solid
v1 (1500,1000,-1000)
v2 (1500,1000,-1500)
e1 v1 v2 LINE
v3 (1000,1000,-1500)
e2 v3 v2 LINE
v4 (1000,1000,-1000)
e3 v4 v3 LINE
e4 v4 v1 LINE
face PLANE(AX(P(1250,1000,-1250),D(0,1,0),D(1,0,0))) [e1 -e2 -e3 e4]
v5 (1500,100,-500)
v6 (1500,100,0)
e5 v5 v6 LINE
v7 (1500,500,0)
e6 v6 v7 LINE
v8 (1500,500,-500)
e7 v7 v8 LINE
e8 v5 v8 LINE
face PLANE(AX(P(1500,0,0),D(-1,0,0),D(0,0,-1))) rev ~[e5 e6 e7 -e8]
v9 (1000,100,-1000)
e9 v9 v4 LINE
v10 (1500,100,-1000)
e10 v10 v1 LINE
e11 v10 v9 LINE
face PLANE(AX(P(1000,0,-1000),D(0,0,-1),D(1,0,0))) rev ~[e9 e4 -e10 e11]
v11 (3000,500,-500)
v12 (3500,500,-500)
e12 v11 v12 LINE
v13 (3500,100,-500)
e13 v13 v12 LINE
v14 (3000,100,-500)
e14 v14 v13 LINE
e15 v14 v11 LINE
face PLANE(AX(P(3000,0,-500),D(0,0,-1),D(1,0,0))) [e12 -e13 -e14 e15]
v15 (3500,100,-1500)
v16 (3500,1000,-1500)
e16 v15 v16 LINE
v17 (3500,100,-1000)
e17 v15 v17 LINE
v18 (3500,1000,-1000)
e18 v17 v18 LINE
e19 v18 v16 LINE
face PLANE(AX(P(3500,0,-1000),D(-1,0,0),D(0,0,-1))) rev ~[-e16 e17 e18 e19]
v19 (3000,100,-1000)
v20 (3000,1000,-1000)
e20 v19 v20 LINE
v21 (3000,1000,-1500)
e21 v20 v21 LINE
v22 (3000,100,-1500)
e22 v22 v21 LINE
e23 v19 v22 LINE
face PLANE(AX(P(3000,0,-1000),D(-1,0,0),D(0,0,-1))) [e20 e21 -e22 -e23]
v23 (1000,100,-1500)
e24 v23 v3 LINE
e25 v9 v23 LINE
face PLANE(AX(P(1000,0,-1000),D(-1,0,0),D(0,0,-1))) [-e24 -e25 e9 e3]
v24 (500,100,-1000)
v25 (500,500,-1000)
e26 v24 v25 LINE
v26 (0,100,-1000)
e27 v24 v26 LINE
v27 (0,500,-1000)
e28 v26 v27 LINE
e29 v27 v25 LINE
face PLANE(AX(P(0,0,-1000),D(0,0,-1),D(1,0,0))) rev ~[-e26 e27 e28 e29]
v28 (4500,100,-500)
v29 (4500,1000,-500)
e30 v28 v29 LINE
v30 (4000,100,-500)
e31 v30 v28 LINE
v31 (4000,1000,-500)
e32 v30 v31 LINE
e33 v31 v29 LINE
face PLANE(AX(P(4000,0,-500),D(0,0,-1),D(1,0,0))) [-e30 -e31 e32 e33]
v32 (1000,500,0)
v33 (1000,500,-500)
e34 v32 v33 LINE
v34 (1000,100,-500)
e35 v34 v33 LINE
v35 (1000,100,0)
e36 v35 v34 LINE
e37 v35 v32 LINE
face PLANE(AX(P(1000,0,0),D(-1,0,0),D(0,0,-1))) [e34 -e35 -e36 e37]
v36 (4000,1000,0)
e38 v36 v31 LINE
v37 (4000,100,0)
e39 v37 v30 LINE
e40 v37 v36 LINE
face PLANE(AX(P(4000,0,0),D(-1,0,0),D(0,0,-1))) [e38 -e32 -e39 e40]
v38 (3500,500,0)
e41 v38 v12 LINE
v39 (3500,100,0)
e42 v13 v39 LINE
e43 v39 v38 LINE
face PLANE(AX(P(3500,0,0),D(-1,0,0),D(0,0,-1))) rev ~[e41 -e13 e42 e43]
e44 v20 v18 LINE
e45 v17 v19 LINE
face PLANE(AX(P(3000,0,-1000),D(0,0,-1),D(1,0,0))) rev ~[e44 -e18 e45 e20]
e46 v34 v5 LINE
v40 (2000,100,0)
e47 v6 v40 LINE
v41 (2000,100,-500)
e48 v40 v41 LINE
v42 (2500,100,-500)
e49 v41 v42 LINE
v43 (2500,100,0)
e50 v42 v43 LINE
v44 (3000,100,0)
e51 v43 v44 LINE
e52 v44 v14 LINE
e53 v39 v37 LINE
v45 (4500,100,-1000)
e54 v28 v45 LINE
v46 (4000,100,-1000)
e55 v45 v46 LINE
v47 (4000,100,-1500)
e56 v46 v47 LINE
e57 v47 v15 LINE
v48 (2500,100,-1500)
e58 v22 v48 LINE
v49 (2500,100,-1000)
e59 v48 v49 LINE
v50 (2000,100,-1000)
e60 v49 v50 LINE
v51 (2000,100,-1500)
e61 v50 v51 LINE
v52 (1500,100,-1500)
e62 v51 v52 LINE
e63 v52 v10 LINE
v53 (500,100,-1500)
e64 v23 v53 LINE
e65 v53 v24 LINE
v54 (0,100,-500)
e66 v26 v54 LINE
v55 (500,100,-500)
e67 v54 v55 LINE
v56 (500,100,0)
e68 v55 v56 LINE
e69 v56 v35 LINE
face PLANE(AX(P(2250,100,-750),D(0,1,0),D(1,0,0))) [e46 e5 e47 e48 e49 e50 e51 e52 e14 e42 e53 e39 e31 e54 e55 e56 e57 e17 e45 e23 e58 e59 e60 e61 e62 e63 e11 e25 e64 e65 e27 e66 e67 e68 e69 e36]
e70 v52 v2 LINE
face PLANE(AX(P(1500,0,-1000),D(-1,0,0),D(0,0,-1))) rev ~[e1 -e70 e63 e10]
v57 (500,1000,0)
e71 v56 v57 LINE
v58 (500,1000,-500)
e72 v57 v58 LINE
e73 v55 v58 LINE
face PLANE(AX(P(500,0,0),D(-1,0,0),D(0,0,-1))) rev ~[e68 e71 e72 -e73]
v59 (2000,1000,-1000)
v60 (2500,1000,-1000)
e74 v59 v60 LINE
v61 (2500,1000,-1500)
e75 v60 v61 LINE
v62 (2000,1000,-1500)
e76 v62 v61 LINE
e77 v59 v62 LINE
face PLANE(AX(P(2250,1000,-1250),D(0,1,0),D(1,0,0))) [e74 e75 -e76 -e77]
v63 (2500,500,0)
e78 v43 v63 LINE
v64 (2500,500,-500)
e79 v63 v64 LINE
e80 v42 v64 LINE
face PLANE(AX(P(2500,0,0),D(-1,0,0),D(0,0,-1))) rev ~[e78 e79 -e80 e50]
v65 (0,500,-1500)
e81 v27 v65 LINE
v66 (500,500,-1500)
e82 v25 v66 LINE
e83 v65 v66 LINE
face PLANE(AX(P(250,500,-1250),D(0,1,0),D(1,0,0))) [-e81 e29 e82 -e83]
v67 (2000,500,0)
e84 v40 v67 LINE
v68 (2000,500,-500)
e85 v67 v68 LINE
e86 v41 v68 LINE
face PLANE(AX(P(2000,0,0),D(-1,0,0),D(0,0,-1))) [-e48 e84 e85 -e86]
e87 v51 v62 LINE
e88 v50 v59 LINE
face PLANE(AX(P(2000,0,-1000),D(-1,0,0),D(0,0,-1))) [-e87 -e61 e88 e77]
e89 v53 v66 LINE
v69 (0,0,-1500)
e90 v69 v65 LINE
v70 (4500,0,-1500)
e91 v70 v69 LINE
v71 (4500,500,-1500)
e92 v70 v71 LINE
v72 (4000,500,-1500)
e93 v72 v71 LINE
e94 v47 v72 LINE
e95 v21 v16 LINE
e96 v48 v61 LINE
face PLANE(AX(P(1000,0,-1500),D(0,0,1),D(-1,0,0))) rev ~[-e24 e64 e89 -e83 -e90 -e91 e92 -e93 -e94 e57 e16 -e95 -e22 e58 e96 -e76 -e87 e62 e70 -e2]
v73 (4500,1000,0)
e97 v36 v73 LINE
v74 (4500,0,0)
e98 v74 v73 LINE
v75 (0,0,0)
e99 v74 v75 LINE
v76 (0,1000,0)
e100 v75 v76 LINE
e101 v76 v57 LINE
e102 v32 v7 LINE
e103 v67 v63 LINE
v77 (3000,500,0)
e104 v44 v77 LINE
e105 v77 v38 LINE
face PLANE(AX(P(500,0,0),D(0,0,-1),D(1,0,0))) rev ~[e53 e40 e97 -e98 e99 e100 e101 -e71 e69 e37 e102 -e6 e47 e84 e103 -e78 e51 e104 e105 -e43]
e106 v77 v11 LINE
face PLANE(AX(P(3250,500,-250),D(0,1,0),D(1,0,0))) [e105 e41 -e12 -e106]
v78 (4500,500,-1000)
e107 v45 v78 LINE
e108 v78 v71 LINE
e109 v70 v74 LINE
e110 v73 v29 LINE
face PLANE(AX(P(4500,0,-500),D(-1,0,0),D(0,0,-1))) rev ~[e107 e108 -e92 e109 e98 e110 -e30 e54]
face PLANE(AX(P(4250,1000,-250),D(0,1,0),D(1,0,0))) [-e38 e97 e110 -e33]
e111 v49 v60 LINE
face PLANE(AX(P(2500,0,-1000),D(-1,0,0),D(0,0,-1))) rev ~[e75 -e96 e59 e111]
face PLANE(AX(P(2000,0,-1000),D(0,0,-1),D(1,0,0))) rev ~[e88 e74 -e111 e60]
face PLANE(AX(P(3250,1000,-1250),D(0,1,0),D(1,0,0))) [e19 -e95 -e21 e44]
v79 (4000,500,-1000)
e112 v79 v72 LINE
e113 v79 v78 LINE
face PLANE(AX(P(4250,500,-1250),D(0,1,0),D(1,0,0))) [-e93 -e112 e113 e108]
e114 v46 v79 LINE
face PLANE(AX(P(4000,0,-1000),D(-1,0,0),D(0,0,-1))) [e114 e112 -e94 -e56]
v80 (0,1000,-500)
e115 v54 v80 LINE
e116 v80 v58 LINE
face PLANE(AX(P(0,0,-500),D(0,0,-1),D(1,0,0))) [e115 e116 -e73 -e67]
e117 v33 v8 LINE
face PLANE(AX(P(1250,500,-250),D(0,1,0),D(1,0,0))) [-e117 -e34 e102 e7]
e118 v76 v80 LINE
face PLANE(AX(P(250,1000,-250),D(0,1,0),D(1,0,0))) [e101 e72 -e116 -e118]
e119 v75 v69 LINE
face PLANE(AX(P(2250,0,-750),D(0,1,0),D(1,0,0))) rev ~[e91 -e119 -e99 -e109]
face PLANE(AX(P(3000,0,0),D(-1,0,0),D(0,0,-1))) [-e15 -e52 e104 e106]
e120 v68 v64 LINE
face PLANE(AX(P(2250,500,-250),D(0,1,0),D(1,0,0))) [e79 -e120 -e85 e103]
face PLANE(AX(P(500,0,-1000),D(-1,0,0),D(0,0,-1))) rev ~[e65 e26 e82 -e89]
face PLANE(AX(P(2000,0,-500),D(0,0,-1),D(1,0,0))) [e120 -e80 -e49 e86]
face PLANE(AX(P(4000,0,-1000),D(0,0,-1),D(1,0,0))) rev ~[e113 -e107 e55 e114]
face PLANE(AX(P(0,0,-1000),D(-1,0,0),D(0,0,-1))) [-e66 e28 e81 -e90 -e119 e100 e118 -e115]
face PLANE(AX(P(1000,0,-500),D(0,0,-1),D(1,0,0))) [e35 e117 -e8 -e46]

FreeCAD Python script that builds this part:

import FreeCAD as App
import Part
import Sketcher


def add_polygon(sketch, points):
    """Adds a closed chain of lines whose ends are joined by coincident constraints."""
    first, n = sketch.GeometryCount, len(points)
    for a, b in zip(points, points[1:] + points[:1]):
        sketch.addGeometry(Part.LineSegment(App.Vector(*a, 0), App.Vector(*b, 0)), False)
    for i in range(n):
        sketch.addConstraint(Sketcher.Constraint("Coincident", first + i, 2, first + (i + 1) % n, 1))

doc = App.newDocument("Part")
body = doc.addObject("PartDesign::Body", "Body")

# Sketch on XZ plane
sketch1 = doc.addObject("Sketcher::SketchObject", "Sketch")
body.addObject(sketch1)
sketch1.AttachmentSupport = (doc.XZ_Plane, [""])
sketch1.MapMode = "FlatFace"
add_polygon(sketch1, [(1000, -500), (1000, 0), (1500, 0), (1500, -500)])  # lines 0-3
sketch1.addConstraint([
    Sketcher.Constraint("Vertical", 0),
    Sketcher.Constraint("Horizontal", 1),
    Sketcher.Constraint("Vertical", 2),
    Sketcher.Constraint("Horizontal", 3),
    Sketcher.Constraint("PointOnObject", 0, 2, -1),
    Sketcher.Constraint("Equal", 3, 0),
    Sketcher.Constraint("DistanceX", 1, 1, 1, 2, 500.0),
    Sketcher.Constraint("DistanceX", -1, 1, 0, 2, 1000.0),
])
pad1 = doc.addObject("PartDesign::Pad", "Pad")
body.addObject(pad1)
pad1.Profile = sketch1
pad1.Length = 500
pad1.Reversed = True
body2 = doc.addObject("PartDesign::Body", "Body001")

# Sketch on XZ plane
sketch2 = doc.addObject("Sketcher::SketchObject", "Sketch001")
body2.addObject(sketch2)
sketch2.AttachmentSupport = (doc.getObject("XZ_Plane001"), [""])
sketch2.MapMode = "FlatFace"
add_polygon(sketch2, [(2000, -500), (2000, 0), (2500, 0), (2500, -500)])  # lines 0-3
sketch2.addConstraint([
    Sketcher.Constraint("Vertical", 0),
    Sketcher.Constraint("Horizontal", 1),
    Sketcher.Constraint("Vertical", 2),
    Sketcher.Constraint("Horizontal", 3),
    Sketcher.Constraint("PointOnObject", 0, 2, -1),
    Sketcher.Constraint("Equal", 3, 0),
    Sketcher.Constraint("DistanceX", 1, 1, 1, 2, 500.0),
    Sketcher.Constraint("DistanceX", -1, 1, 0, 2, 2000.0),
])
pad2 = doc.addObject("PartDesign::Pad", "Pad001")
body2.addObject(pad2)
pad2.Profile = sketch2
pad2.Length = 500
pad2.Reversed = True
body3 = doc.addObject("PartDesign::Body", "Body002")

# Sketch on XZ plane
sketch3 = doc.addObject("Sketcher::SketchObject", "Sketch002")
body3.addObject(sketch3)
sketch3.AttachmentSupport = (doc.getObject("XZ_Plane002"), [""])
sketch3.MapMode = "FlatFace"
add_polygon(sketch3, [(4000, -1500), (4000, -1000), (4500, -1000), (4500, -1500)])  # lines 0-3
sketch3.addConstraint([
    Sketcher.Constraint("Vertical", 0),
    Sketcher.Constraint("Horizontal", 1),
    Sketcher.Constraint("Vertical", 2),
    Sketcher.Constraint("Horizontal", 3),
    Sketcher.Constraint("Equal", 3, 0),
    Sketcher.Constraint("DistanceX", 1, 1, 1, 2, 500.0),
    Sketcher.Constraint("DistanceX", -1, 1, 0, 2, 4000.0),
    Sketcher.Constraint("DistanceY", 0, 2, -1, 1, 1000.0),
])
pad3 = doc.addObject("PartDesign::Pad", "Pad002")
body3.addObject(pad3)
pad3.Profile = sketch3
pad3.Length = 500
pad3.Reversed = True
body4 = doc.addObject("PartDesign::Body", "Body003")

# Sketch on XZ plane
sketch4 = doc.addObject("Sketcher::SketchObject", "Sketch003")
body4.addObject(sketch4)
sketch4.AttachmentSupport = (doc.getObject("XZ_Plane003"), [""])
sketch4.MapMode = "FlatFace"
add_polygon(sketch4, [(0, -1500), (0, -1000), (500, -1000), (500, -1500)])  # lines 0-3
sketch4.addConstraint([
    Sketcher.Constraint("Vertical", 0),
    Sketcher.Constraint("Horizontal", 1),
    Sketcher.Constraint("Vertical", 2),
    Sketcher.Constraint("Horizontal", 3),
    Sketcher.Constraint("PointOnObject", 0, 2, -2),
    Sketcher.Constraint("Equal", 3, 0),
    Sketcher.Constraint("DistanceX", 1, 1, 1, 2, 500.0),
    Sketcher.Constraint("DistanceY", 0, 2, -1, 1, 1000.0),
])
pad4 = doc.addObject("PartDesign::Pad", "Pad003")
body4.addObject(pad4)
pad4.Profile = sketch4
pad4.Length = 500
pad4.Reversed = True
body5 = doc.addObject("PartDesign::Body", "Body004")

# Sketch on XZ plane
sketch5 = doc.addObject("Sketcher::SketchObject", "Sketch004")
body5.addObject(sketch5)
sketch5.AttachmentSupport = (doc.getObject("XZ_Plane004"), [""])
sketch5.MapMode = "FlatFace"
add_polygon(sketch5, [(3000, -500), (3000, 0), (3500, 0), (3500, -500)])  # lines 0-3
sketch5.addConstraint([
    Sketcher.Constraint("Vertical", 0),
    Sketcher.Constraint("Horizontal", 1),
    Sketcher.Constraint("Vertical", 2),
    Sketcher.Constraint("Horizontal", 3),
    Sketcher.Constraint("PointOnObject", 0, 2, -1),
    Sketcher.Constraint("Equal", 3, 0),
    Sketcher.Constraint("DistanceX", 1, 1, 1, 2, 500.0),
    Sketcher.Constraint("DistanceX", -1, 1, 0, 2, 3000.0),
])
pad5 = doc.addObject("PartDesign::Pad", "Pad004")
body5.addObject(pad5)
pad5.Profile = sketch5
pad5.Length = 500
pad5.Reversed = True
body6 = doc.addObject("PartDesign::Body", "Body005")

# Sketch on XZ plane
sketch6 = doc.addObject("Sketcher::SketchObject", "Sketch005")
body6.addObject(sketch6)
sketch6.AttachmentSupport = (doc.getObject("XZ_Plane005"), [""])
sketch6.MapMode = "FlatFace"
add_polygon(sketch6, [(0, -500), (0, 0), (500, 0), (500, -500)])  # lines 0-3
sketch6.addConstraint([
    Sketcher.Constraint("Vertical", 0),
    Sketcher.Constraint("Horizontal", 1),
    Sketcher.Constraint("Vertical", 2),
    Sketcher.Constraint("Horizontal", 3),
    Sketcher.Constraint("Coincident", 0, 2, -1, 1),
    Sketcher.Constraint("Equal", 3, 0),
    Sketcher.Constraint("DistanceX", 1, 1, 1, 2, 500.0),
])
pad6 = doc.addObject("PartDesign::Pad", "Pad005")
body6.addObject(pad6)
pad6.Profile = sketch6
pad6.Length = 1000
pad6.Reversed = True
body7 = doc.addObject("PartDesign::Body", "Body006")

# Sketch on XZ plane
sketch7 = doc.addObject("Sketcher::SketchObject", "Sketch006")
body7.addObject(sketch7)
sketch7.AttachmentSupport = (doc.getObject("XZ_Plane006"), [""])
sketch7.MapMode = "FlatFace"
add_polygon(sketch7, [(1000, -1500), (1000, -1000), (1500, -1000), (1500, -1500)])  # lines 0-3
sketch7.addConstraint([
    Sketcher.Constraint("Vertical", 0),
    Sketcher.Constraint("Horizontal", 1),
    Sketcher.Constraint("Vertical", 2),
    Sketcher.Constraint("Horizontal", 3),
    Sketcher.Constraint("Equal", 3, 0),
    Sketcher.Constraint("DistanceX", 1, 1, 1, 2, 500.0),
    Sketcher.Constraint("DistanceX", -1, 1, 0, 2, 1000.0),
    Sketcher.Constraint("DistanceY", 0, 2, -1, 1, 1000.0),
])
pad7 = doc.addObject("PartDesign::Pad", "Pad006")
body7.addObject(pad7)
pad7.Profile = sketch7
pad7.Length = 1000
pad7.Reversed = True
body8 = doc.addObject("PartDesign::Body", "Body007")

# Sketch on XZ plane
sketch8 = doc.addObject("Sketcher::SketchObject", "Sketch007")
body8.addObject(sketch8)
sketch8.AttachmentSupport = (doc.getObject("XZ_Plane007"), [""])
sketch8.MapMode = "FlatFace"
add_polygon(sketch8, [(2000, -1500), (2000, -1000), (2500, -1000), (2500, -1500)])  # lines 0-3
sketch8.addConstraint([
    Sketcher.Constraint("Vertical", 0),
    Sketcher.Constraint("Horizontal", 1),
    Sketcher.Constraint("Vertical", 2),
    Sketcher.Constraint("Horizontal", 3),
    Sketcher.Constraint("Equal", 3, 0),
    Sketcher.Constraint("DistanceX", 1, 1, 1, 2, 500.0),
    Sketcher.Constraint("DistanceX", -1, 1, 0, 2, 2000.0),
    Sketcher.Constraint("DistanceY", 0, 2, -1, 1, 1000.0),
])
pad8 = doc.addObject("PartDesign::Pad", "Pad007")
body8.addObject(pad8)
pad8.Profile = sketch8
pad8.Length = 1000
pad8.Reversed = True
body9 = doc.addObject("PartDesign::Body", "Body008")

# Sketch on XZ plane
sketch9 = doc.addObject("Sketcher::SketchObject", "Sketch008")
body9.addObject(sketch9)
sketch9.AttachmentSupport = (doc.getObject("XZ_Plane008"), [""])
sketch9.MapMode = "FlatFace"
add_polygon(sketch9, [(3000, -1500), (3000, -1000), (3500, -1000), (3500, -1500)])  # lines 0-3
sketch9.addConstraint([
    Sketcher.Constraint("Vertical", 0),
    Sketcher.Constraint("Horizontal", 1),
    Sketcher.Constraint("Vertical", 2),
    Sketcher.Constraint("Horizontal", 3),
    Sketcher.Constraint("Equal", 3, 0),
    Sketcher.Constraint("DistanceX", 1, 1, 1, 2, 500.0),
    Sketcher.Constraint("DistanceX", -1, 1, 0, 2, 3000.0),
    Sketcher.Constraint("DistanceY", 0, 2, -1, 1, 1000.0),
])
pad9 = doc.addObject("PartDesign::Pad", "Pad008")
body9.addObject(pad9)
pad9.Profile = sketch9
pad9.Length = 1000
pad9.Reversed = True
body10 = doc.addObject("PartDesign::Body", "Body009")

# Sketch on XZ plane
sketch10 = doc.addObject("Sketcher::SketchObject", "Sketch009")
body10.addObject(sketch10)
sketch10.AttachmentSupport = (doc.getObject("XZ_Plane009"), [""])
sketch10.MapMode = "FlatFace"
add_polygon(sketch10, [(4000, -500), (4000, 0), (4500, 0), (4500, -500)])  # lines 0-3
sketch10.addConstraint([
    Sketcher.Constraint("Vertical", 0),
    Sketcher.Constraint("Horizontal", 1),
    Sketcher.Constraint("Vertical", 2),
    Sketcher.Constraint("Horizontal", 3),
    Sketcher.Constraint("PointOnObject", 0, 2, -1),
    Sketcher.Constraint("Equal", 3, 0),
    Sketcher.Constraint("DistanceX", 1, 1, 1, 2, 500.0),
    Sketcher.Constraint("DistanceX", -1, 1, 0, 2, 4000.0),
])
pad10 = doc.addObject("PartDesign::Pad", "Pad009")
body10.addObject(pad10)
pad10.Profile = sketch10
pad10.Length = 1000
pad10.Reversed = True
body.AllowCompound = True
doc.recompute()

boolean = doc.addObject("PartDesign::Boolean", "Boolean")
body.addObject(boolean)
boolean.Type = "Fuse"
boolean.addObjects([body2])
doc.recompute()

boolean2 = doc.addObject("PartDesign::Boolean", "Boolean001")
body.addObject(boolean2)
boolean2.Type = "Fuse"
boolean2.addObjects([body3])
doc.recompute()

boolean3 = doc.addObject("PartDesign::Boolean", "Boolean002")
body.addObject(boolean3)
boolean3.Type = "Fuse"
boolean3.addObjects([body4])
doc.recompute()

boolean4 = doc.addObject("PartDesign::Boolean", "Boolean003")
body.addObject(boolean4)
boolean4.Type = "Fuse"
boolean4.addObjects([body5])
doc.recompute()

boolean5 = doc.addObject("PartDesign::Boolean", "Boolean004")
body.addObject(boolean5)
boolean5.Type = "Fuse"
boolean5.addObjects([body6])
doc.recompute()

boolean6 = doc.addObject("PartDesign::Boolean", "Boolean005")
body.addObject(boolean6)
boolean6.Type = "Fuse"
boolean6.addObjects([body7])
doc.recompute()

boolean7 = doc.addObject("PartDesign::Boolean", "Boolean006")
body.addObject(boolean7)
boolean7.Type = "Fuse"
boolean7.addObjects([body8])
doc.recompute()

boolean8 = doc.addObject("PartDesign::Boolean", "Boolean007")
body.addObject(boolean8)
boolean8.Type = "Fuse"
boolean8.addObjects([body9])
doc.recompute()

boolean9 = doc.addObject("PartDesign::Boolean", "Boolean008")
body.addObject(boolean9)
boolean9.Type = "Fuse"
boolean9.addObjects([body10])

# Sketch on XZ plane
sketch11 = doc.addObject("Sketcher::SketchObject", "Sketch010")
body.addObject(sketch11)
sketch11.AttachmentSupport = (doc.XZ_Plane, [""])
sketch11.MapMode = "FlatFace"
add_polygon(sketch11, [(1000, -1000), (1000, -1500), (500, -1500), (500, -1000), (0, -1000), (0, -500), (500, -500), (500, 0), (1000, 0), (1000, -500), (1500, -500), (1500, 0), (2000, 0), (2000, -500), (2500, -500), (2500, 0), (3000, 0), (3000, -500), (3500, -500), (3500, 0), (4000, 0), (4000, -500), (4500, -500), (4500, -1000), (4000, -1000), (4000, -1500), (3500, -1500), (3500, -1000), (3000, -1000), (3000, -1500), (2500, -1500), (2500, -1000), (2000, -1000), (2000, -1500), (1500, -1500), (1500, -1000)])  # lines 0-35
sketch11.addConstraint([
    Sketcher.Constraint("Vertical", 0),
    Sketcher.Constraint("Horizontal", 1),
    Sketcher.Constraint("Vertical", 2),
    Sketcher.Constraint("Horizontal", 3),
    Sketcher.Constraint("Vertical", 4),
    Sketcher.Constraint("Horizontal", 5),
    Sketcher.Constraint("Vertical", 6),
    Sketcher.Constraint("Horizontal", 7),
    Sketcher.Constraint("Vertical", 8),
    Sketcher.Constraint("Horizontal", 9),
    Sketcher.Constraint("Vertical", 10),
    Sketcher.Constraint("Horizontal", 11),
    Sketcher.Constraint("Vertical", 12),
    Sketcher.Constraint("Horizontal", 13),
    Sketcher.Constraint("Vertical", 14),
    Sketcher.Constraint("Horizontal", 15),
    Sketcher.Constraint("Vertical", 16),
    Sketcher.Constraint("Horizontal", 17),
    Sketcher.Constraint("Vertical", 18),
    Sketcher.Constraint("Horizontal", 19),
    Sketcher.Constraint("Vertical", 20),
    Sketcher.Constraint("Horizontal", 21),
    Sketcher.Constraint("Vertical", 22),
    Sketcher.Constraint("Horizontal", 23),
    Sketcher.Constraint("Vertical", 24),
    Sketcher.Constraint("Horizontal", 25),
    Sketcher.Constraint("Vertical", 26),
    Sketcher.Constraint("Horizontal", 27),
    Sketcher.Constraint("Vertical", 28),
    Sketcher.Constraint("Horizontal", 29),
    Sketcher.Constraint("Vertical", 30),
    Sketcher.Constraint("Horizontal", 31),
    Sketcher.Constraint("Vertical", 32),
    Sketcher.Constraint("Horizontal", 33),
    Sketcher.Constraint("Vertical", 34),
    Sketcher.Constraint("Horizontal", 35),
    Sketcher.Constraint("PointOnObject", 3, 2, -2),
    Sketcher.Constraint("PointOnObject", 6, 2, -1),
    Sketcher.Constraint("PointOnObject", 10, 2, -1),
    Sketcher.Constraint("PointOnObject", 14, 2, -1),
    Sketcher.Constraint("PointOnObject", 18, 2, -1),
    Sketcher.Constraint("Horizontal", 5, 2, 8, 2),
    Sketcher.Constraint("Horizontal", 9, 2, 12, 2),
    Sketcher.Constraint("Horizontal", 13, 2, 16, 2),
    Sketcher.Constraint("Horizontal", 17, 2, 20, 2),
    Sketcher.Constraint("Horizontal", 3, 2, 22, 2),
    Sketcher.Constraint("Horizontal", 1, 2, 24, 2),
    Sketcher.Constraint("Horizontal", 23, 2, 26, 2),
    Sketcher.Constraint("Horizontal", 25, 2, 28, 2),
    Sketcher.Constraint("Horizontal", 27, 2, 30, 2),
    Sketcher.Constraint("Horizontal", 29, 2, 32, 2),
    Sketcher.Constraint("Horizontal", 31, 2, 34, 2),
    Sketcher.Constraint("Vertical", 2, 2, 5, 2),
    Sketcher.Constraint("Vertical", 0, 2, 7, 2),
    Sketcher.Constraint("Vertical", 20, 2, 23, 2),
    Sketcher.Constraint("Vertical", 18, 2, 25, 2),
    Sketcher.Constraint("Vertical", 16, 2, 27, 2),
    Sketcher.Constraint("Vertical", 14, 2, 29, 2),
    Sketcher.Constraint("Vertical", 12, 2, 31, 2),
    Sketcher.Constraint("Vertical", 10, 2, 33, 2),
    Sketcher.Constraint("Equal", 1, 3),
    Sketcher.Constraint("Equal", 7, 9),
    Sketcher.Constraint("Equal", 9, 11),
    Sketcher.Constraint("Equal", 11, 13),
    Sketcher.Constraint("Equal", 13, 15),
    Sketcher.Constraint("Equal", 15, 17),
    Sketcher.Constraint("Equal", 17, 19),
    Sketcher.Constraint("Equal", 19, 21),
    Sketcher.Constraint("Equal", 35, 0),
    Sketcher.Constraint("Equal", 2, 4),
    Sketcher.Constraint("Equal", 4, 6),
    Sketcher.Constraint("DistanceX", 1, 2, 1, 1, 500.0),
])
pad11 = doc.addObject("PartDesign::Pad", "Pad010")
body.addObject(pad11)
pad11.Profile = sketch11
pad11.Length = 100
pad11.Reversed = True

doc.recompute()
